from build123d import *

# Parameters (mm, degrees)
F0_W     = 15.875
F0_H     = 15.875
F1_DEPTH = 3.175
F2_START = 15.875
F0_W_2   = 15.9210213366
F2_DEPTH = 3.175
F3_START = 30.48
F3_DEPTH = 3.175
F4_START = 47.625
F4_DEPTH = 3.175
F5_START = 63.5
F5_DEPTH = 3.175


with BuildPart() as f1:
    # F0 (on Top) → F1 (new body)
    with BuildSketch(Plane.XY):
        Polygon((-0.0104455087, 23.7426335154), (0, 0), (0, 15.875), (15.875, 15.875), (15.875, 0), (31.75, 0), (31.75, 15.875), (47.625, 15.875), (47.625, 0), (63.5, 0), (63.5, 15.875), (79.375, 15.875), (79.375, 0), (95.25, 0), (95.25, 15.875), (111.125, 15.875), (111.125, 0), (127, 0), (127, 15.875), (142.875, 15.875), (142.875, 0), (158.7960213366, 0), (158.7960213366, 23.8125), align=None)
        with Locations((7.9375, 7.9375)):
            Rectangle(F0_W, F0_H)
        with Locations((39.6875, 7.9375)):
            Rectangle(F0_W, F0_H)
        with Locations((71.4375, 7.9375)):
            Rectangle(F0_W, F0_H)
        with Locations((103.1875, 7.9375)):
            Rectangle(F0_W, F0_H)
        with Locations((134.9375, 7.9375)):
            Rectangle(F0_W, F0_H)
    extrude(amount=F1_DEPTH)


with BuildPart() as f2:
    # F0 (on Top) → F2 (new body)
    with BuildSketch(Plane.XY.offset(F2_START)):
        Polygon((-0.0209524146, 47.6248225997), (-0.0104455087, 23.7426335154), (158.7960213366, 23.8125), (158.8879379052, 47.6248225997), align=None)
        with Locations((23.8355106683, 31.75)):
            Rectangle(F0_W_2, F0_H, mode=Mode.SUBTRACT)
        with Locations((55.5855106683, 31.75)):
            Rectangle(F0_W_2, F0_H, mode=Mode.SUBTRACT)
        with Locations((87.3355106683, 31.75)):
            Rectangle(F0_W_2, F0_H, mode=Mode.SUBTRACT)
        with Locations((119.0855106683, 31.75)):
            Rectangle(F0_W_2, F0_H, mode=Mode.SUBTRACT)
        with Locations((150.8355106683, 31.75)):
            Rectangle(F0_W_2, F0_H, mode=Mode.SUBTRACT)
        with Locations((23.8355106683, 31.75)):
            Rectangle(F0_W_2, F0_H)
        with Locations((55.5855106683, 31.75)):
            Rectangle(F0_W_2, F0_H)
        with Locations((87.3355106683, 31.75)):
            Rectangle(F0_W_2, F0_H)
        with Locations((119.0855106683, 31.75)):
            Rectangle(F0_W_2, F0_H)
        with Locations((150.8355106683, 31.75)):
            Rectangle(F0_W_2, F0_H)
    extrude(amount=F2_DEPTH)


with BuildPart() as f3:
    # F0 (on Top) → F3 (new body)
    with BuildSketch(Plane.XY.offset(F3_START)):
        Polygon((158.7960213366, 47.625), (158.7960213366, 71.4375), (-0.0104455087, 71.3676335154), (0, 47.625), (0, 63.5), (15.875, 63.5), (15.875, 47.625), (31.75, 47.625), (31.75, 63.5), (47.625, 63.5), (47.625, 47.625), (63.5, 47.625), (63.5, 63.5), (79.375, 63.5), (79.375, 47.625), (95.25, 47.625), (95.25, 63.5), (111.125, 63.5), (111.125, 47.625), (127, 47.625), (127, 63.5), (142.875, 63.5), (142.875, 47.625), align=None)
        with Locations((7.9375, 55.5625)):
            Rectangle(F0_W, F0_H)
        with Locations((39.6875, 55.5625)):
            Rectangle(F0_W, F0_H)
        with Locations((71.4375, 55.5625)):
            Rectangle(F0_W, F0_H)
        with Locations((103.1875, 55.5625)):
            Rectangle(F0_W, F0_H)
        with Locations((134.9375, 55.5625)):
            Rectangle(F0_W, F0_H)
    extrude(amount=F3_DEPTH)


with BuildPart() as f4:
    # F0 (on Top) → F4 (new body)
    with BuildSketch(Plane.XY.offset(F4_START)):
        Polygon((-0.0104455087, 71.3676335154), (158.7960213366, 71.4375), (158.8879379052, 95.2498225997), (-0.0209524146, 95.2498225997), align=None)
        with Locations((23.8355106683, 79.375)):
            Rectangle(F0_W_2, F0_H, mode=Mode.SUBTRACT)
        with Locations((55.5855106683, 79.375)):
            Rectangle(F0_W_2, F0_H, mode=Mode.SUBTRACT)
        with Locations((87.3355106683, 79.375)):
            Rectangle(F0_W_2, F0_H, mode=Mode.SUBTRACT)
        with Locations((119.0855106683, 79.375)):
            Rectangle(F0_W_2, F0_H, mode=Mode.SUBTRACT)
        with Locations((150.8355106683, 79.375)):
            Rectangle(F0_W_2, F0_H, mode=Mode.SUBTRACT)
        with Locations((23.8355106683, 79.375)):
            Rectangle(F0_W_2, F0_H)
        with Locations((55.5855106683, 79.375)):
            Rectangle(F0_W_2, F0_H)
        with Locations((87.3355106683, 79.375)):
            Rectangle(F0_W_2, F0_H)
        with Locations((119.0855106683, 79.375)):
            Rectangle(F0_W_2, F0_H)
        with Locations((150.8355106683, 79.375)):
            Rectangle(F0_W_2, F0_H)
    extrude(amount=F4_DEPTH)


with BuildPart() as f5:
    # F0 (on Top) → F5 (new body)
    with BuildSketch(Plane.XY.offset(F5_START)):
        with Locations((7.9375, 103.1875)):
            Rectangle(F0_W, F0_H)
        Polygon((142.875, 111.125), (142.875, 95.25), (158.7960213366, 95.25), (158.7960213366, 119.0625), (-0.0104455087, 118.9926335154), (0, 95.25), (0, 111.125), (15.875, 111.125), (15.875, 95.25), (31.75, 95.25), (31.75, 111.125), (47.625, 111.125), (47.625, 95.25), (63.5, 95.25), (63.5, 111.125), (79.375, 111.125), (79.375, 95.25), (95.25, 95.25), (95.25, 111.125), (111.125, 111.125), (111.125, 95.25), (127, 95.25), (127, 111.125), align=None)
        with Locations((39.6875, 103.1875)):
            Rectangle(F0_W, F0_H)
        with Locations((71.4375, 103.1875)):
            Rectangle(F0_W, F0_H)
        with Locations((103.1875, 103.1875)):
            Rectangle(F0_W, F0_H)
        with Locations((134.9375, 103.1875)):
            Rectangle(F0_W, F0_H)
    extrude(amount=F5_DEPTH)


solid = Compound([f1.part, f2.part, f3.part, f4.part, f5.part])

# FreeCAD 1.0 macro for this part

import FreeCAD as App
import Part
import Sketcher

V = App.Vector
Q = App.Units.Quantity


def add_polygon(sketch, points):
    """Adds a closed chain of lines whose ends are joined by coincident constraints."""
    first, n = sketch.GeometryCount, len(points)
    for a, b in zip(points, points[1:] + points[:1]):
        sketch.addGeometry(Part.LineSegment(App.Vector(*a, 0), App.Vector(*b, 0)), False)
    for i in range(n):
        sketch.addConstraint(Sketcher.Constraint("Coincident", first + i, 2, first + (i + 1) % n, 1))

doc = App.newDocument("Part")
body = doc.addObject("PartDesign::Body", "Body")

sketch1 = doc.addObject("Sketcher::SketchObject", "Sketch")
body.addObject(sketch1)
sketch1.AttachmentSupport = (doc.XY_Plane, [""])
sketch1.MapMode = "FlatFace"
add_polygon(sketch1, [(0, 24), (0, 0), (159, 0), (159, 24)])
sketch1.addConstraint(Sketcher.Constraint("Horizontal", 1))
sketch1.addConstraint(Sketcher.Constraint("Vertical", 2))
sketch1.addConstraint(Sketcher.Constraint("Coincident", 0, 2, -1, 1))
sketch1.addConstraint(Sketcher.Constraint("Perpendicular", 0, 3))
sketch1.addConstraint(Sketcher.Constraint("DistanceY", 2, 1, 2, 2, Q("0.9375 in")))
sketch1.addConstraint(Sketcher.Constraint("DistanceX", 1, 1, 1, 2, 158.796021))
sketch1.addConstraint(Sketcher.Constraint("Distance", 0, 23.742636))
pad1 = doc.addObject("PartDesign::Pad", "Pad")
body.addObject(pad1)
pad1.Profile = sketch1
pad1.Length = Q("0.125 in")
body2 = doc.addObject("PartDesign::Body", "Body001")

sketch2 = doc.addObject("Sketcher::SketchObject", "Sketch001")
body2.addObject(sketch2)
sketch2.AttachmentSupport = (doc.getObject("XY_Plane001"), [""])
sketch2.MapMode = "FlatFace"
sketch2.AttachmentOffset = App.Placement(V(0, 0, 0.625 * 25.4), App.Rotation())
add_polygon(sketch2, [(0, 24), (159, 24), (159, 48), (0, 48)])
sketch2.addConstraint(Sketcher.Constraint("Horizontal", 2))
sketch2.addConstraint(Sketcher.Constraint("Perpendicular", 0, 3))
sketch2.addConstraint(Sketcher.Constraint("Distance", 1, Q("0.9375 in")))
sketch2.addConstraint(Sketcher.Constraint("DistanceY", -1, 1, 0, 2, Q("0.9375 in")))
sketch2.addConstraint(Sketcher.Constraint("DistanceX", 2, 2, 2, 1, 158.90889))
sketch2.addConstraint(Sketcher.Constraint("Distance", 3, 23.882191))
sketch2.addConstraint(Sketcher.Constraint("DistanceX", -1, 1, 0, 2, 158.796021))
sketch2.addConstraint(Sketcher.Constraint("Distance", 0, 158.806482))
pad2 = doc.addObject("PartDesign::Pad", "Pad001")
body2.addObject(pad2)
pad2.Profile = sketch2
pad2.Length = Q("0.125 in")
body3 = doc.addObject("PartDesign::Body", "Body002")

sketch3 = doc.addObject("Sketcher::SketchObject", "Sketch002")
body3.addObject(sketch3)
sketch3.AttachmentSupport = (doc.getObject("XY_Plane002"), [""])
sketch3.MapMode = "FlatFace"
sketch3.AttachmentOffset = App.Placement(V(0, 0, 1.2 * 25.4), App.Rotation())
add_polygon(sketch3, [(159, 48), (159, 71), (0, 71), (0, 48)])
sketch3.addConstraint(Sketcher.Constraint("Vertical", 0))
sketch3.addConstraint(Sketcher.Constraint("Horizontal", 3))
sketch3.addConstraint(Sketcher.Constraint("PointOnObject", 2, 2, -2))
sketch3.addConstraint(Sketcher.Constraint("Perpendicular", 1, 2))
sketch3.addConstraint(Sketcher.Constraint("DistanceY", 0, 1, 0, 2, Q("0.9375 in")))
sketch3.addConstraint(Sketcher.Constraint("DistanceY", -1, 1, 0, 2, Q("2.8125 in")))
sketch3.addConstraint(Sketcher.Constraint("DistanceX", 3, 1, 3, 2, 158.796021))
sketch3.addConstraint(Sketcher.Constraint("Distance", 1, 158.806482))
pad3 = doc.addObject("PartDesign::Pad", "Pad002")
body3.addObject(pad3)
pad3.Profile = sketch3
pad3.Length = Q("0.125 in")
body4 = doc.addObject("PartDesign::Body", "Body003")

sketch4 = doc.addObject("Sketcher::SketchObject", "Sketch003")
body4.addObject(sketch4)
sketch4.AttachmentSupport = (doc.getObject("XY_Plane003"), [""])
sketch4.MapMode = "FlatFace"
sketch4.AttachmentOffset = App.Placement(V(0, 0, 1.875 * 25.4), App.Rotation())
add_polygon(sketch4, [(0, 71), (159, 71), (159, 95), (0, 95)])
sketch4.addConstraint(Sketcher.Constraint("Horizontal", 2))
sketch4.addConstraint(Sketcher.Constraint("Perpendicular", 0, 3))
sketch4.addConstraint(Sketcher.Constraint("Distance", 1, Q("0.9375 in")))
sketch4.addConstraint(Sketcher.Constraint("DistanceY", -1, 1, 0, 2, Q("2.8125 in")))
sketch4.addConstraint(Sketcher.Constraint("DistanceX", 2, 2, 2, 1, 158.90889))
sketch4.addConstraint(Sketcher.Constraint("Distance", 3, 23.882191))
sketch4.addConstraint(Sketcher.Constraint("DistanceX", -1, 1, 0, 2, 158.796021))
sketch4.addConstraint(Sketcher.Constraint("Distance", 0, 158.806482))
pad4 = doc.addObject("PartDesign::Pad", "Pad003")
body4.addObject(pad4)
pad4.Profile = sketch4
pad4.Length = Q("0.125 in")
body5 = doc.addObject("PartDesign::Body", "Body004")

sketch5 = doc.addObject("Sketcher::SketchObject", "Sketch004")
body5.addObject(sketch5)
sketch5.AttachmentSupport = (doc.getObject("XY_Plane004"), [""])
sketch5.MapMode = "FlatFace"
sketch5.AttachmentOffset = App.Placement(V(0, 0, 2.5 * 25.4), App.Rotation())
add_polygon(sketch5, [(0, 95), (159, 95), (159, 119), (0, 119)])
sketch5.addConstraint(Sketcher.Constraint("Horizontal", 0))
sketch5.addConstraint(Sketcher.Constraint("Vertical", 1))
sketch5.addConstraint(Sketcher.Constraint("PointOnObject", 3, 2, -2))
sketch5.addConstraint(Sketcher.Constraint("Perpendicular", 2, 3))
sketch5.addConstraint(Sketcher.Constraint("DistanceY", 1, 1, 1, 2, Q("0.9375 in")))
sketch5.addConstraint(Sketcher.Constraint("DistanceY", -1, 1, 0, 2, Q("3.75 in")))
sketch5.addConstraint(Sketcher.Constraint("DistanceX", 0, 1, 0, 2, 158.796021))
sketch5.addConstraint(Sketcher.Constraint("Distance", 2, 158.806482))
pad5 = doc.addObject("PartDesign::Pad", "Pad004")
body5.addObject(pad5)
pad5.Profile = sketch5
pad5.Length = Q("0.125 in")

doc.recompute()
